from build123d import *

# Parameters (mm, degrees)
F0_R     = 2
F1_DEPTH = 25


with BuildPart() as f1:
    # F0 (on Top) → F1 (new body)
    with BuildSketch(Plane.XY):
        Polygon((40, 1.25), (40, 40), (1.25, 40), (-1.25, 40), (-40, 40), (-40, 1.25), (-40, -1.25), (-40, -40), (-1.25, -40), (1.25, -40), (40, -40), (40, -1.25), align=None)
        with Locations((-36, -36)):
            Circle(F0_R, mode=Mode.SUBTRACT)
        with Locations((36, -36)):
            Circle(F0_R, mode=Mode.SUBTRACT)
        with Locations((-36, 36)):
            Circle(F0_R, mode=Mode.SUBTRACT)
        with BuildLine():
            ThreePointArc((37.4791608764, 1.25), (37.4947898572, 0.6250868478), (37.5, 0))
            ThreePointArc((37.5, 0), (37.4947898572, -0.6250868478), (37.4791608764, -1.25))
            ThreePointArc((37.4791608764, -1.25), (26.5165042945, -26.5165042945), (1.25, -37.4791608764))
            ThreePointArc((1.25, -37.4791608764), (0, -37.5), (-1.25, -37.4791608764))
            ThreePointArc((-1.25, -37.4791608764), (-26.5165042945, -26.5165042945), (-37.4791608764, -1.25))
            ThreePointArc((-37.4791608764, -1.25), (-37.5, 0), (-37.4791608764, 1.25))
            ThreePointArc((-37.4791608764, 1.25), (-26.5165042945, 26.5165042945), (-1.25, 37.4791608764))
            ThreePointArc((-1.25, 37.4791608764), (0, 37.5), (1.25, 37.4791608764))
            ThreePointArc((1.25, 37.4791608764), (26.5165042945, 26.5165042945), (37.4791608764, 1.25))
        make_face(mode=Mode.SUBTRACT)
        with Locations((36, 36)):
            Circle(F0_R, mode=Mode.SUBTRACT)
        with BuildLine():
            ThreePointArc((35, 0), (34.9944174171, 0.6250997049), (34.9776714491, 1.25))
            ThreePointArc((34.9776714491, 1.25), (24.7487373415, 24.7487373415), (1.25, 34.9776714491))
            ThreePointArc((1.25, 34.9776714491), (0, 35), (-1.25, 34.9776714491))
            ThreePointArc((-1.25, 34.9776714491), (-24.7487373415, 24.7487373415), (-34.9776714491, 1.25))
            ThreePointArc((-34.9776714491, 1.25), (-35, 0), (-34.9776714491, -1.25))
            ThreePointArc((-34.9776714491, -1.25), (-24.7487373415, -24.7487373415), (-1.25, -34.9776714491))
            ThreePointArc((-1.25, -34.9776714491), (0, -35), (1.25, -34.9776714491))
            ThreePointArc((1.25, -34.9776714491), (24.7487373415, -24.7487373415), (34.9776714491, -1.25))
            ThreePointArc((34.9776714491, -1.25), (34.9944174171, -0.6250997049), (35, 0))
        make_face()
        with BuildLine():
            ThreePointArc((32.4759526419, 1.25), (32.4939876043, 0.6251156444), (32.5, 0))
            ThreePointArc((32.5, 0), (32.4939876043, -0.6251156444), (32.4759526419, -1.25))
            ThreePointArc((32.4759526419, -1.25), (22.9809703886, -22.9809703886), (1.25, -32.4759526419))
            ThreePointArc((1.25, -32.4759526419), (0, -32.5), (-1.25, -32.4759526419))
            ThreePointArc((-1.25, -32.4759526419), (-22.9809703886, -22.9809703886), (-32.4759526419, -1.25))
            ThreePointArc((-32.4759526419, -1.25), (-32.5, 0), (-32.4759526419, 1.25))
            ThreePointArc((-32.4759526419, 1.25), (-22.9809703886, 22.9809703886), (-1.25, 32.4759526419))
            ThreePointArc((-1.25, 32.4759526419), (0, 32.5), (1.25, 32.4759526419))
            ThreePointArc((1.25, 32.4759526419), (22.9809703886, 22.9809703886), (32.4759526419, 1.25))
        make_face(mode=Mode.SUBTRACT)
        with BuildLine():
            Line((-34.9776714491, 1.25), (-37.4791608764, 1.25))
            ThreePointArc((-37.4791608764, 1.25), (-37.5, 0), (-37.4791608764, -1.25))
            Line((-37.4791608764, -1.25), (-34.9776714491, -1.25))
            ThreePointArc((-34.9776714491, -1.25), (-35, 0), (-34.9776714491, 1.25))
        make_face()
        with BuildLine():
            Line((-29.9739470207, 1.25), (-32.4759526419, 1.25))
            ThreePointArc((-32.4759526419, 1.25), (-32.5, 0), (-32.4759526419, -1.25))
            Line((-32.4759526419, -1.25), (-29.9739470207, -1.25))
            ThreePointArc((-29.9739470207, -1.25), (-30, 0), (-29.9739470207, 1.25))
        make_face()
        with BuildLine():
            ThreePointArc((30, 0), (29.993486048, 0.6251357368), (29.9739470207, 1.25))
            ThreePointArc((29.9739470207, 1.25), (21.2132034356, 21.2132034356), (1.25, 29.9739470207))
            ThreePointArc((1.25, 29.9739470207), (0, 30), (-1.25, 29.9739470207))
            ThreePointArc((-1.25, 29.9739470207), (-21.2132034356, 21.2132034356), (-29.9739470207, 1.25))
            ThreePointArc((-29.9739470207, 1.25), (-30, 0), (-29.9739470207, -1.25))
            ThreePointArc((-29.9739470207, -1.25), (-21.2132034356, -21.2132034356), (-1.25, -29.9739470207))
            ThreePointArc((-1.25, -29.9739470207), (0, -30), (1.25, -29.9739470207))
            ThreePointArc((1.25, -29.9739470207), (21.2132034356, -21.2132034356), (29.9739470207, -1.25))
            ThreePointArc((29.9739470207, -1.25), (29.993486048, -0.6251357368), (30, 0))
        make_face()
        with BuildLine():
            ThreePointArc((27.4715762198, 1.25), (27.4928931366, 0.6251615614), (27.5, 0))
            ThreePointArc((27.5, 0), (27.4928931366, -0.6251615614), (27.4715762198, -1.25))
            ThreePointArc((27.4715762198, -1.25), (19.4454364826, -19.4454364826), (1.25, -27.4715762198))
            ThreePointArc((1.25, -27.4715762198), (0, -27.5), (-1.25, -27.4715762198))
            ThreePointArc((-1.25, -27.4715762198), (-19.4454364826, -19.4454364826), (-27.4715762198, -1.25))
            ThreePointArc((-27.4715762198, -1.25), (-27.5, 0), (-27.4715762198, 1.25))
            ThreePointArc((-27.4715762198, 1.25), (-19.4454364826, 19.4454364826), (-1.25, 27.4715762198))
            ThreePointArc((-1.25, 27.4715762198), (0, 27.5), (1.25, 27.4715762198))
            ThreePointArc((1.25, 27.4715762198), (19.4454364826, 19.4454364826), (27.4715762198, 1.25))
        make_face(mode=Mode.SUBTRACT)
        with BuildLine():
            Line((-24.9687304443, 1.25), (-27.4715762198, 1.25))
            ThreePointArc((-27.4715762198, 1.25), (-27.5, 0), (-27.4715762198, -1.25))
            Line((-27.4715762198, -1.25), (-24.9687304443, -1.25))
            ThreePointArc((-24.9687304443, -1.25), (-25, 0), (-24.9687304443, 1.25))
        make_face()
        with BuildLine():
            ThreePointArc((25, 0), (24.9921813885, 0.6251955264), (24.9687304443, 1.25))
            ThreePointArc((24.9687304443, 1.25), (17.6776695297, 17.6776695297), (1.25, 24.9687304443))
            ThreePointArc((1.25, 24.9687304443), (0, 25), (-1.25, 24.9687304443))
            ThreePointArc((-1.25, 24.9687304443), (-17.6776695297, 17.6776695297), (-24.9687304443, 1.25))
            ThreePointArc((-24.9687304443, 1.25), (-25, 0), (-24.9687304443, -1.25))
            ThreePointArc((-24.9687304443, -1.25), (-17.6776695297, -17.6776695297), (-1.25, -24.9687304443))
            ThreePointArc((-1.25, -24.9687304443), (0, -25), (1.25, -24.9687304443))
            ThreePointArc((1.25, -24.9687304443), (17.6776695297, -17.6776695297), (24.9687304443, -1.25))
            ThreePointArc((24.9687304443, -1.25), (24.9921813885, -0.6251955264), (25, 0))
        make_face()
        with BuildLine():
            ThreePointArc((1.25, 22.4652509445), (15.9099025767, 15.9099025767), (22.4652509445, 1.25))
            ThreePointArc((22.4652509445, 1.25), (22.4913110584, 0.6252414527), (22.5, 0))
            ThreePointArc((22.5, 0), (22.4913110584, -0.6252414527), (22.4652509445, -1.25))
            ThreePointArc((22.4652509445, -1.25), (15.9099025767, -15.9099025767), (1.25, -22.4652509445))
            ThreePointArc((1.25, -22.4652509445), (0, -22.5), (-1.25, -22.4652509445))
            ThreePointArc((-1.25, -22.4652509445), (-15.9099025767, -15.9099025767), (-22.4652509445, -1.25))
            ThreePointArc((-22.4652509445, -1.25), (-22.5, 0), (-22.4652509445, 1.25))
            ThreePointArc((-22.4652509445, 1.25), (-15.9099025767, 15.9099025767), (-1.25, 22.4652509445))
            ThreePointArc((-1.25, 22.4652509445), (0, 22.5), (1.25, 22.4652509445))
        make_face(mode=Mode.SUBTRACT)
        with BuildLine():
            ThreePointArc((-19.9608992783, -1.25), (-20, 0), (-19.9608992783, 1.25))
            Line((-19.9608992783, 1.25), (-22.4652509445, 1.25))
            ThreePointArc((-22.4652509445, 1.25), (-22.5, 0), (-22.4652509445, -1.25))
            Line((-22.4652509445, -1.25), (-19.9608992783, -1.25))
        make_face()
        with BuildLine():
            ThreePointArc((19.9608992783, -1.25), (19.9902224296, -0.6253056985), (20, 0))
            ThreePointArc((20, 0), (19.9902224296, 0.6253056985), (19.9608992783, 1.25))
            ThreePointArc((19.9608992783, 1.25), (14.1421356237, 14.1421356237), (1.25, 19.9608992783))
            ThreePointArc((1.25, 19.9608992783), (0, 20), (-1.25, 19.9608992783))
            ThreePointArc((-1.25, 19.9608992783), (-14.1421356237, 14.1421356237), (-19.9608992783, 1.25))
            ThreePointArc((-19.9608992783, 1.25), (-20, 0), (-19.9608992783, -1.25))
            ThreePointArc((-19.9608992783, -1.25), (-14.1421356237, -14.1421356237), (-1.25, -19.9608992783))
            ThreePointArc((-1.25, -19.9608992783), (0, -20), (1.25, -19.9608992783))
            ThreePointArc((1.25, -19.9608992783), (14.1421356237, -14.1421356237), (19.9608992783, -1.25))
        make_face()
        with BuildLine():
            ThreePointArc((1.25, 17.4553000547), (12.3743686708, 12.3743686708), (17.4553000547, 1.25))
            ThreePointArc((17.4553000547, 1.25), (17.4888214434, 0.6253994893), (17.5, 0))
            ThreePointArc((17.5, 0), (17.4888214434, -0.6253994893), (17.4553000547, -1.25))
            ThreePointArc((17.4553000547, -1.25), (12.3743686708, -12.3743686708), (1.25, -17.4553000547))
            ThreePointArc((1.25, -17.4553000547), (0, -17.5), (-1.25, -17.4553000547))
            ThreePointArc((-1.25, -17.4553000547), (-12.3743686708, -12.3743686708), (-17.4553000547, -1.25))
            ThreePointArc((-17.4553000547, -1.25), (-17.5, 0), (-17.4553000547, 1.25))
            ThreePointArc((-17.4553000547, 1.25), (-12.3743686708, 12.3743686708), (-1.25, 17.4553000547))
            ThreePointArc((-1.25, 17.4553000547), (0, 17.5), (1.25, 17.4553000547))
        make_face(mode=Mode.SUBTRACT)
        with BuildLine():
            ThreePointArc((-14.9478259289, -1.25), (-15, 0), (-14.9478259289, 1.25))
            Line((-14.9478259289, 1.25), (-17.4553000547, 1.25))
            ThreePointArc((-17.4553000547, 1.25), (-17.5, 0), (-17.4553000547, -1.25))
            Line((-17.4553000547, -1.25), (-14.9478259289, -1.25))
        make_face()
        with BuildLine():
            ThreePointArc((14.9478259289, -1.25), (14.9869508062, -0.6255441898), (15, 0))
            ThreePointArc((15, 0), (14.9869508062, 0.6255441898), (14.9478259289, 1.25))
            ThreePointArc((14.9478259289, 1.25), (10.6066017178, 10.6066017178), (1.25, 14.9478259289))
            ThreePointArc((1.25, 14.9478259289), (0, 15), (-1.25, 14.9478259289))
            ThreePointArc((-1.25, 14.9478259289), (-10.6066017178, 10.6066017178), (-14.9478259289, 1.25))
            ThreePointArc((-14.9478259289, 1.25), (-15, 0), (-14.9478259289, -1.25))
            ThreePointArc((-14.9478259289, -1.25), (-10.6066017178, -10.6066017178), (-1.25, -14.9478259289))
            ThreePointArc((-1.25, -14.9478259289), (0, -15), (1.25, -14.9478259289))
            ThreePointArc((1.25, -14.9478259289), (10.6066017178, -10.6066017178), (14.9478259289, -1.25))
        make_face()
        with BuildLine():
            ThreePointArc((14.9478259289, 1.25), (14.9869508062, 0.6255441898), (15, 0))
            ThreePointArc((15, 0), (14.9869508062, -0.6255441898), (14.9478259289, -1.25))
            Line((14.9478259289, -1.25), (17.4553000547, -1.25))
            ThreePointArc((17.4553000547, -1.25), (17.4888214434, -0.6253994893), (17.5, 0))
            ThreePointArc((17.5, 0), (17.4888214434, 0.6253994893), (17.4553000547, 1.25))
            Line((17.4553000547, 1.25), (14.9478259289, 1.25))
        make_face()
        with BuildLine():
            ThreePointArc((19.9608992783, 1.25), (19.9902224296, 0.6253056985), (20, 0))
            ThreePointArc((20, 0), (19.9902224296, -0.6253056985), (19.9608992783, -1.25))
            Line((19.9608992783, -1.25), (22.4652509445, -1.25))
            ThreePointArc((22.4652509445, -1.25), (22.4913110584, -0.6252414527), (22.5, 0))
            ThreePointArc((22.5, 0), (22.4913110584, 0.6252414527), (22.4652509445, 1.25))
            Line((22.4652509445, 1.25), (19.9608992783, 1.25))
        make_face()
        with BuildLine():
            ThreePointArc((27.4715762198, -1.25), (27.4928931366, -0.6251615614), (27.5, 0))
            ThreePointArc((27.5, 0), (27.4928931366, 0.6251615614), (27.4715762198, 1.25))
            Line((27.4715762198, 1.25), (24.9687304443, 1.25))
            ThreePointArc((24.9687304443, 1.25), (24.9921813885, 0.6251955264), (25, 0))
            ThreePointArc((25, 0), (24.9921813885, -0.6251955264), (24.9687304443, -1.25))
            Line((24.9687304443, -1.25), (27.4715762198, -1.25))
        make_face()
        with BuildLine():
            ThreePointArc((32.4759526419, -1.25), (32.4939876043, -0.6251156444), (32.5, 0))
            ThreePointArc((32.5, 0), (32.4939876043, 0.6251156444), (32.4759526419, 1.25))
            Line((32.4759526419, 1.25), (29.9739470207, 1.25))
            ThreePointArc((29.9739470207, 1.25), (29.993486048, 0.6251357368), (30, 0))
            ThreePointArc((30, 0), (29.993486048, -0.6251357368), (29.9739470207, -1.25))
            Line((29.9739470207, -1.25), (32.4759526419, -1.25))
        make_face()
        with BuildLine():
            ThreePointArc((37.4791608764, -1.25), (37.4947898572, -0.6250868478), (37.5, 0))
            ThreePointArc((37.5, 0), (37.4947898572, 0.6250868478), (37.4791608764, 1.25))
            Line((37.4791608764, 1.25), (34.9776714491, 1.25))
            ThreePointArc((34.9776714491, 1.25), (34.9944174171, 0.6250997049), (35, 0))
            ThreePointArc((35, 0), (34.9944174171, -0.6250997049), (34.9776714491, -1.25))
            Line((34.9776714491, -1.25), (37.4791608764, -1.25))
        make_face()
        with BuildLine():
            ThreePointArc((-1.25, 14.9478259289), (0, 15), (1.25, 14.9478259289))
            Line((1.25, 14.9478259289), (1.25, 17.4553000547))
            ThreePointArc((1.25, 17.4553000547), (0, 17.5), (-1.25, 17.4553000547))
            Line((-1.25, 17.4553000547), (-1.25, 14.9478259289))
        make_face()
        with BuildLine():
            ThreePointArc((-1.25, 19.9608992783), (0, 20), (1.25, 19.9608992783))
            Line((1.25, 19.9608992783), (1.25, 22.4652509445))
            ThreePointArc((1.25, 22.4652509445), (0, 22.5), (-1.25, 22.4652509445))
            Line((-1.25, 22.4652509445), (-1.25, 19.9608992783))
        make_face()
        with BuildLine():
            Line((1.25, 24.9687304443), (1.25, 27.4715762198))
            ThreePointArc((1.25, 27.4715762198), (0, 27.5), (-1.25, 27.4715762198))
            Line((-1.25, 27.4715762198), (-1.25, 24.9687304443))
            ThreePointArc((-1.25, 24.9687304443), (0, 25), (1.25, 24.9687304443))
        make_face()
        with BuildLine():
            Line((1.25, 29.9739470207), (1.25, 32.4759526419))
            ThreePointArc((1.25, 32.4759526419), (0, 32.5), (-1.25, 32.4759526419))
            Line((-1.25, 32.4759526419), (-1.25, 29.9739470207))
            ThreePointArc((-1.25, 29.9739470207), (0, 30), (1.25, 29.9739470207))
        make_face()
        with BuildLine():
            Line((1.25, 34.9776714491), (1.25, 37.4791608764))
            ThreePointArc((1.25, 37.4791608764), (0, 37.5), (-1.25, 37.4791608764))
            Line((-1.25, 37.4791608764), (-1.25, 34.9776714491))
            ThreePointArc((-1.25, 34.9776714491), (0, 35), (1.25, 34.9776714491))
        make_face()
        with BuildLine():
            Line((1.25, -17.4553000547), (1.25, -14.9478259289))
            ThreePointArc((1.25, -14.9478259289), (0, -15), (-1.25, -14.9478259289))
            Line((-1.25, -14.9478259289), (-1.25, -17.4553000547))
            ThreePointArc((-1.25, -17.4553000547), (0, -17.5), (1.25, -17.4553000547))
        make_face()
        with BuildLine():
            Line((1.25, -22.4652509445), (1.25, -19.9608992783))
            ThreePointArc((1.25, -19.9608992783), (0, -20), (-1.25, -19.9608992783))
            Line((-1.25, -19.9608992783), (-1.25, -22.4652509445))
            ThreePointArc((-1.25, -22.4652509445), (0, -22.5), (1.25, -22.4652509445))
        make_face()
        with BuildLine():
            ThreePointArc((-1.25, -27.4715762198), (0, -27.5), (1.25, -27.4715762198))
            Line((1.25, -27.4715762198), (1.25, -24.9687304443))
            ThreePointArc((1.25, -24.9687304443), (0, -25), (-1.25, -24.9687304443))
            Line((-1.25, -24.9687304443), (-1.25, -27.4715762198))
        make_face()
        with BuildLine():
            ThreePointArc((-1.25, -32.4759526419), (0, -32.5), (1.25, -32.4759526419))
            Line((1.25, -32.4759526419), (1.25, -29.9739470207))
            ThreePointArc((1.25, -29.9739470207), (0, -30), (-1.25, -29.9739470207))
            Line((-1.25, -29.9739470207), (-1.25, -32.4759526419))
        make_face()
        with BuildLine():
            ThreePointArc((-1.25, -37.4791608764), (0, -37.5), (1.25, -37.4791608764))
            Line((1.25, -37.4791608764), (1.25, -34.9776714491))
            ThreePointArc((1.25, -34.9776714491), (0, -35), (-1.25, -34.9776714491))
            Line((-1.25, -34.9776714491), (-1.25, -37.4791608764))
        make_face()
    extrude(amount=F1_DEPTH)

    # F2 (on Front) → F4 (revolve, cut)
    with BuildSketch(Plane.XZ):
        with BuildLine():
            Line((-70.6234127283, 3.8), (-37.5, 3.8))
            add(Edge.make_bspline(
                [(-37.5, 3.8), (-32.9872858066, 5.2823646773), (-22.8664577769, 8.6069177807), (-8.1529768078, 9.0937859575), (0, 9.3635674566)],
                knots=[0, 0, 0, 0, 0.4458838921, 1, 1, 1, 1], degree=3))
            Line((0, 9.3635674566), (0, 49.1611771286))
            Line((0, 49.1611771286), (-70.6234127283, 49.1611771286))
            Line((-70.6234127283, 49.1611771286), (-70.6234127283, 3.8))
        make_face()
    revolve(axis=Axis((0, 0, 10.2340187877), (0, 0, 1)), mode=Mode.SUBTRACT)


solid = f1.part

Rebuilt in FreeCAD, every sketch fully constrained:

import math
import FreeCAD as App
import Part
import Sketcher
from FreeCAD import Vector
Q = App.Units.Quantity


def add_polygon(sketch, points):
    """Adds a closed chain of lines whose ends are joined by coincident constraints."""
    first, n = sketch.GeometryCount, len(points)
    for a, b in zip(points, points[1:] + points[:1]):
        sketch.addGeometry(Part.LineSegment(App.Vector(*a, 0), App.Vector(*b, 0)), False)
    for i in range(n):
        sketch.addConstraint(Sketcher.Constraint("Coincident", first + i, 2, first + (i + 1) % n, 1))

doc = App.newDocument("Part")
body = doc.addObject("PartDesign::Body", "Body")

sketch1 = body.newObject("Sketcher::SketchObject", "Sketch")
sketch1.AttachmentSupport = (doc.getObject("XY_Plane"), [""])
sketch1.MapMode = "FlatFace"
add_polygon(sketch1, [(40, 40), (-40, 40), (-40, -40), (40, -40)])
sketch1.addGeometry(Part.Circle(Vector(-36, -36, 0), Vector(0, 0, 1), 2), False)
sketch1.addGeometry(Part.Circle(Vector(36, -36, 0), Vector(0, 0, 1), 2), False)
sketch1.addGeometry(Part.Circle(Vector(-36, 36, 0), Vector(0, 0, 1), 2), False)
sketch1.addGeometry(Part.ArcOfCircle(Part.Circle(Vector(0, 0, 0), Vector(0, 0, 1), 37.5), math.radians(2), math.radians(88)), False)
sketch1.addGeometry(Part.LineSegment(Vector(37.5, 1.2, 0), Vector(35, 1.2, 0)), False)
sketch1.addGeometry(Part.ArcOfCircle(Part.Circle(Vector(0, 0, 0), Vector(0, 0, 1), 35), math.radians(2), math.radians(88)), False)
sketch1.addGeometry(Part.LineSegment(Vector(1.2, 35, 0), Vector(1.2, 37.5, 0)), False)
sketch1.addGeometry(Part.ArcOfCircle(Part.Circle(Vector(0, 0, 0), Vector(0, 0, 1), 35), math.radians(92), math.radians(178)), False)
sketch1.addGeometry(Part.LineSegment(Vector(-35, 1.2, 0), Vector(-37.5, 1.2, 0)), False)
sketch1.addGeometry(Part.ArcOfCircle(Part.Circle(Vector(0, 0, 0), Vector(0, 0, 1), 37.5), math.radians(92), math.radians(178)), False)
sketch1.addGeometry(Part.LineSegment(Vector(-1.2, 37.5, 0), Vector(-1.2, 35, 0)), False)
sketch1.addGeometry(Part.ArcOfCircle(Part.Circle(Vector(0, 0, 0), Vector(0, 0, 1), 37.5), math.radians(-88), math.radians(-2)), False)
sketch1.addGeometry(Part.LineSegment(Vector(1.2, -37.5, 0), Vector(1.2, -35, 0)), False)
sketch1.addGeometry(Part.ArcOfCircle(Part.Circle(Vector(0, 0, 0), Vector(0, 0, 1), 35), math.radians(-88), math.radians(-2)), False)
sketch1.addGeometry(Part.LineSegment(Vector(35, -1.2, 0), Vector(37.5, -1.2, 0)), False)
sketch1.addGeometry(Part.ArcOfCircle(Part.Circle(Vector(0, 0, 0), Vector(0, 0, 1), 37.5), math.radians(-178), math.radians(-92)), False)
sketch1.addGeometry(Part.LineSegment(Vector(-37.5, -1.2, 0), Vector(-35, -1.2, 0)), False)
sketch1.addGeometry(Part.ArcOfCircle(Part.Circle(Vector(0, 0, 0), Vector(0, 0, 1), 35), math.radians(-178), math.radians(-92)), False)
sketch1.addGeometry(Part.LineSegment(Vector(-1.2, -35, 0), Vector(-1.2, -37.5, 0)), False)
sketch1.addGeometry(Part.ArcOfCircle(Part.Circle(Vector(0, 0, 0), Vector(0, 0, 1), 27.5), math.radians(3), math.radians(87)), False)
sketch1.addGeometry(Part.LineSegment(Vector(27.5, 1.2, 0), Vector(25, 1.2, 0)), False)
sketch1.addGeometry(Part.ArcOfCircle(Part.Circle(Vector(0, 0, 0), Vector(0, 0, 1), 25), math.radians(3), math.radians(87)), False)
sketch1.addGeometry(Part.LineSegment(Vector(1.2, 25, 0), Vector(1.2, 27.5, 0)), False)
sketch1.addGeometry(Part.ArcOfCircle(Part.Circle(Vector(0, 0, 0), Vector(0, 0, 1), 25), math.radians(93), math.radians(177)), False)
sketch1.addGeometry(Part.LineSegment(Vector(-25, 1.2, 0), Vector(-27.5, 1.2, 0)), False)
sketch1.addGeometry(Part.ArcOfCircle(Part.Circle(Vector(0, 0, 0), Vector(0, 0, 1), 27.5), math.radians(93), math.radians(177)), False)
sketch1.addGeometry(Part.LineSegment(Vector(-1.2, 27.5, 0), Vector(-1.2, 25, 0)), False)
sketch1.addGeometry(Part.ArcOfCircle(Part.Circle(Vector(0, 0, 0), Vector(0, 0, 1), 27.5), math.radians(-87), math.radians(-3)), False)
sketch1.addGeometry(Part.LineSegment(Vector(1.2, -27.5, 0), Vector(1.2, -25, 0)), False)
sketch1.addGeometry(Part.ArcOfCircle(Part.Circle(Vector(0, 0, 0), Vector(0, 0, 1), 25), math.radians(-87), math.radians(-3)), False)
sketch1.addGeometry(Part.LineSegment(Vector(25, -1.2, 0), Vector(27.5, -1.2, 0)), False)
sketch1.addGeometry(Part.ArcOfCircle(Part.Circle(Vector(0, 0, 0), Vector(0, 0, 1), 27.5), math.radians(-177), math.radians(-93)), False)
sketch1.addGeometry(Part.LineSegment(Vector(-27.5, -1.2, 0), Vector(-25, -1.2, 0)), False)
sketch1.addGeometry(Part.ArcOfCircle(Part.Circle(Vector(0, 0, 0), Vector(0, 0, 1), 25), math.radians(-177), math.radians(-93)), False)
sketch1.addGeometry(Part.LineSegment(Vector(-1.2, -25, 0), Vector(-1.2, -27.5, 0)), False)
sketch1.addGeometry(Part.ArcOfCircle(Part.Circle(Vector(0, 0, 0), Vector(0, 0, 1), 32.5), math.radians(-88), math.radians(-2)), False)
sketch1.addGeometry(Part.LineSegment(Vector(1.2, -32.5, 0), Vector(1.2, -30, 0)), False)
sketch1.addGeometry(Part.ArcOfCircle(Part.Circle(Vector(0, 0, 0), Vector(0, 0, 1), 30), math.radians(-88), math.radians(-2)), False)
sketch1.addGeometry(Part.LineSegment(Vector(30, -1.2, 0), Vector(32.5, -1.2, 0)), False)
sketch1.addGeometry(Part.ArcOfCircle(Part.Circle(Vector(0, 0, 0), Vector(0, 0, 1), 32.5), math.radians(-178), math.radians(-92)), False)
sketch1.addGeometry(Part.LineSegment(Vector(-32.5, -1.2, 0), Vector(-30, -1.2, 0)), False)
sketch1.addGeometry(Part.ArcOfCircle(Part.Circle(Vector(0, 0, 0), Vector(0, 0, 1), 30), math.radians(-178), math.radians(-92)), False)
sketch1.addGeometry(Part.LineSegment(Vector(-1.2, -30, 0), Vector(-1.2, -32.5, 0)), False)
sketch1.addGeometry(Part.ArcOfCircle(Part.Circle(Vector(0, 0, 0), Vector(0, 0, 1), 30), math.radians(2), math.radians(88)), False)
sketch1.addGeometry(Part.LineSegment(Vector(1.2, 30, 0), Vector(1.2, 32.5, 0)), False)
sketch1.addGeometry(Part.ArcOfCircle(Part.Circle(Vector(0, 0, 0), Vector(0, 0, 1), 32.5), math.radians(2), math.radians(88)), False)
sketch1.addGeometry(Part.LineSegment(Vector(32.5, 1.2, 0), Vector(30, 1.2, 0)), False)
sketch1.addGeometry(Part.ArcOfCircle(Part.Circle(Vector(0, 0, 0), Vector(0, 0, 1), 30), math.radians(92), math.radians(178)), False)
sketch1.addGeometry(Part.LineSegment(Vector(-30, 1.2, 0), Vector(-32.5, 1.2, 0)), False)
sketch1.addGeometry(Part.ArcOfCircle(Part.Circle(Vector(0, 0, 0), Vector(0, 0, 1), 32.5), math.radians(92), math.radians(178)), False)
sketch1.addGeometry(Part.LineSegment(Vector(-1.2, 32.5, 0), Vector(-1.2, 30, 0)), False)
sketch1.addGeometry(Part.ArcOfCircle(Part.Circle(Vector(0, 0, 0), Vector(0, 0, 1), 22.5), math.radians(3), math.radians(87)), False)
sketch1.addGeometry(Part.LineSegment(Vector(22.5, 1.2, 0), Vector(20, 1.2, 0)), False)
sketch1.addGeometry(Part.ArcOfCircle(Part.Circle(Vector(0, 0, 0), Vector(0, 0, 1), 20), math.radians(4), math.radians(86)), False)
sketch1.addGeometry(Part.LineSegment(Vector(1.2, 20, 0), Vector(1.2, 22.5, 0)), False)
sketch1.addGeometry(Part.ArcOfCircle(Part.Circle(Vector(0, 0, 0), Vector(0, 0, 1), 20), math.radians(94), math.radians(176)), False)
sketch1.addGeometry(Part.LineSegment(Vector(-20, 1.2, 0), Vector(-22.5, 1.2, 0)), False)
sketch1.addGeometry(Part.ArcOfCircle(Part.Circle(Vector(0, 0, 0), Vector(0, 0, 1), 22.5), math.radians(93), math.radians(177)), False)
sketch1.addGeometry(Part.LineSegment(Vector(-1.2, 22.5, 0), Vector(-1.2, 20, 0)), False)
sketch1.addGeometry(Part.ArcOfCircle(Part.Circle(Vector(0, 0, 0), Vector(0, 0, 1), 22.5), math.radians(-87), math.radians(-3)), False)
sketch1.addGeometry(Part.LineSegment(Vector(1.2, -22.5, 0), Vector(1.2, -20, 0)), False)
sketch1.addGeometry(Part.ArcOfCircle(Part.Circle(Vector(0, 0, 0), Vector(0, 0, 1), 20), math.radians(-86), math.radians(-4)), False)
sketch1.addGeometry(Part.LineSegment(Vector(20, -1.2, 0), Vector(22.5, -1.2, 0)), False)
sketch1.addGeometry(Part.ArcOfCircle(Part.Circle(Vector(0, 0, 0), Vector(0, 0, 1), 22.5), math.radians(-177), math.radians(-93)), False)
sketch1.addGeometry(Part.LineSegment(Vector(-22.5, -1.2, 0), Vector(-20, -1.2, 0)), False)
sketch1.addGeometry(Part.ArcOfCircle(Part.Circle(Vector(0, 0, 0), Vector(0, 0, 1), 20), math.radians(-176), math.radians(-94)), False)
sketch1.addGeometry(Part.LineSegment(Vector(-1.2, -20, 0), Vector(-1.2, -22.5, 0)), False)
sketch1.addGeometry(Part.ArcOfCircle(Part.Circle(Vector(0, 0, 0), Vector(0, 0, 1), 17.5), math.radians(4), math.radians(86)), False)
sketch1.addGeometry(Part.LineSegment(Vector(17.5, 1.2, 0), Vector(14.9, 1.2, 0)), False)
sketch1.addGeometry(Part.ArcOfCircle(Part.Circle(Vector(0, 0, 0), Vector(0, 0, 1), 15), math.radians(5), math.radians(85)), False)
sketch1.addGeometry(Part.LineSegment(Vector(1.2, 14.9, 0), Vector(1.2, 17.5, 0)), False)
sketch1.addGeometry(Part.ArcOfCircle(Part.Circle(Vector(0, 0, 0), Vector(0, 0, 1), 15), math.radians(95), math.radians(175)), False)
sketch1.addGeometry(Part.LineSegment(Vector(-14.9, 1.2, 0), Vector(-17.5, 1.2, 0)), False)
sketch1.addGeometry(Part.ArcOfCircle(Part.Circle(Vector(0, 0, 0), Vector(0, 0, 1), 17.5), math.radians(94), math.radians(176)), False)
sketch1.addGeometry(Part.LineSegment(Vector(-1.2, 17.5, 0), Vector(-1.2, 14.9, 0)), False)
sketch1.addGeometry(Part.ArcOfCircle(Part.Circle(Vector(0, 0, 0), Vector(0, 0, 1), 17.5), math.radians(-86), math.radians(-4)), False)
sketch1.addGeometry(Part.LineSegment(Vector(1.2, -17.5, 0), Vector(1.2, -14.9, 0)), False)
sketch1.addGeometry(Part.ArcOfCircle(Part.Circle(Vector(0, 0, 0), Vector(0, 0, 1), 15), math.radians(-85), math.radians(-5)), False)
sketch1.addGeometry(Part.LineSegment(Vector(14.9, -1.2, 0), Vector(17.5, -1.2, 0)), False)
sketch1.addGeometry(Part.ArcOfCircle(Part.Circle(Vector(0, 0, 0), Vector(0, 0, 1), 17.5), math.radians(-176), math.radians(-94)), False)
sketch1.addGeometry(Part.LineSegment(Vector(-17.5, -1.2, 0), Vector(-14.9, -1.2, 0)), False)
sketch1.addGeometry(Part.ArcOfCircle(Part.Circle(Vector(0, 0, 0), Vector(0, 0, 1), 15), math.radians(-175), math.radians(-95)), False)
sketch1.addGeometry(Part.LineSegment(Vector(-1.2, -14.9, 0), Vector(-1.2, -17.5, 0)), False)
sketch1.addGeometry(Part.Circle(Vector(36, 36, 0), Vector(0, 0, 1), 2), False)
sketch1.addConstraint([
    Sketcher.Constraint("Coincident", 7, 1, 8, 1),
    Sketcher.Constraint("Coincident", 8, 2, 9, 1),
    Sketcher.Constraint("Coincident", 9, 2, 10, 1),
    Sketcher.Constraint("Coincident", 10, 2, 7, 2),
    Sketcher.Constraint("Coincident", 11, 2, 12, 1),
    Sketcher.Constraint("Coincident", 12, 2, 13, 2),
    Sketcher.Constraint("Coincident", 13, 1, 14, 1),
    Sketcher.Constraint("Coincident", 14, 2, 11, 1),
    Sketcher.Constraint("Coincident", 15, 1, 16, 1),
    Sketcher.Constraint("Coincident", 16, 2, 17, 1),
    Sketcher.Constraint("Coincident", 17, 2, 18, 1),
    Sketcher.Constraint("Coincident", 18, 2, 15, 2),
    Sketcher.Constraint("Coincident", 19, 1, 20, 1),
    Sketcher.Constraint("Coincident", 20, 2, 21, 1),
    Sketcher.Constraint("Coincident", 21, 2, 22, 1),
    Sketcher.Constraint("Coincident", 22, 2, 19, 2),
    Sketcher.Constraint("Coincident", 23, 1, 24, 1),
    Sketcher.Constraint("Coincident", 24, 2, 25, 1),
    Sketcher.Constraint("Coincident", 25, 2, 26, 1),
    Sketcher.Constraint("Coincident", 26, 2, 23, 2),
    Sketcher.Constraint("Coincident", 27, 2, 28, 1),
    Sketcher.Constraint("Coincident", 28, 2, 29, 2),
    Sketcher.Constraint("Coincident", 29, 1, 30, 1),
    Sketcher.Constraint("Coincident", 30, 2, 27, 1),
    Sketcher.Constraint("Coincident", 31, 1, 32, 1),
    Sketcher.Constraint("Coincident", 32, 2, 33, 1),
    Sketcher.Constraint("Coincident", 33, 2, 34, 1),
    Sketcher.Constraint("Coincident", 34, 2, 31, 2),
    Sketcher.Constraint("Coincident", 35, 1, 36, 1),
    Sketcher.Constraint("Coincident", 36, 2, 37, 1),
    Sketcher.Constraint("Coincident", 37, 2, 38, 1),
    Sketcher.Constraint("Coincident", 38, 2, 35, 2),
    Sketcher.Constraint("Coincident", 39, 1, 40, 1),
    Sketcher.Constraint("Coincident", 40, 2, 41, 1),
    Sketcher.Constraint("Coincident", 41, 2, 42, 1),
    Sketcher.Constraint("Coincident", 42, 2, 39, 2),
    Sketcher.Constraint("Coincident", 43, 1, 44, 1),
    Sketcher.Constraint("Coincident", 44, 2, 45, 1),
    Sketcher.Constraint("Coincident", 45, 2, 46, 1),
    Sketcher.Constraint("Coincident", 46, 2, 43, 2),
    Sketcher.Constraint("Coincident", 47, 2, 48, 1),
    Sketcher.Constraint("Coincident", 48, 2, 49, 2),
    Sketcher.Constraint("Coincident", 49, 1, 50, 1),
    Sketcher.Constraint("Coincident", 50, 2, 47, 1),
    Sketcher.Constraint("Coincident", 51, 2, 52, 1),
    Sketcher.Constraint("Coincident", 52, 2, 53, 2),
    Sketcher.Constraint("Coincident", 53, 1, 54, 1),
    Sketcher.Constraint("Coincident", 54, 2, 51, 1),
    Sketcher.Constraint("Coincident", 55, 1, 56, 1),
    Sketcher.Constraint("Coincident", 56, 2, 57, 1),
    Sketcher.Constraint("Coincident", 57, 2, 58, 1),
    Sketcher.Constraint("Coincident", 58, 2, 55, 2),
    Sketcher.Constraint("Coincident", 59, 2, 60, 1),
    Sketcher.Constraint("Coincident", 60, 2, 61, 2),
    Sketcher.Constraint("Coincident", 61, 1, 62, 1),
    Sketcher.Constraint("Coincident", 62, 2, 59, 1),
    Sketcher.Constraint("Coincident", 63, 1, 64, 1),
    Sketcher.Constraint("Coincident", 64, 2, 65, 1),
    Sketcher.Constraint("Coincident", 65, 2, 66, 1),
    Sketcher.Constraint("Coincident", 66, 2, 63, 2),
    Sketcher.Constraint("Coincident", 67, 1, 68, 1),
    Sketcher.Constraint("Coincident", 68, 2, 69, 1),
    Sketcher.Constraint("Coincident", 69, 2, 70, 1),
    Sketcher.Constraint("Coincident", 70, 2, 67, 2),
    Sketcher.Constraint("Coincident", 71, 1, 72, 1),
    Sketcher.Constraint("Coincident", 72, 2, 73, 1),
    Sketcher.Constraint("Coincident", 73, 2, 74, 1),
    Sketcher.Constraint("Coincident", 74, 2, 71, 2),
    Sketcher.Constraint("Coincident", 75, 2, 76, 1),
    Sketcher.Constraint("Coincident", 76, 2, 77, 2),
    Sketcher.Constraint("Coincident", 77, 1, 78, 1),
    Sketcher.Constraint("Coincident", 78, 2, 75, 1),
    Sketcher.Constraint("Coincident", 79, 1, 80, 1),
    Sketcher.Constraint("Coincident", 80, 2, 81, 1),
    Sketcher.Constraint("Coincident", 81, 2, 82, 1),
    Sketcher.Constraint("Coincident", 82, 2, 79, 2),
    Sketcher.Constraint("Coincident", 83, 1, 84, 1),
    Sketcher.Constraint("Coincident", 84, 2, 85, 1),
    Sketcher.Constraint("Coincident", 85, 2, 86, 1),
    Sketcher.Constraint("Coincident", 86, 2, 83, 2),
    Sketcher.Constraint("Horizontal", 0),
    Sketcher.Constraint("Vertical", 1),
    Sketcher.Constraint("Horizontal", 2),
    Sketcher.Constraint("Vertical", 3),
    Sketcher.Constraint("Horizontal", 8),
    Sketcher.Constraint("Vertical", 10),
    Sketcher.Constraint("Horizontal", 12),
    Sketcher.Constraint("Vertical", 14),
    Sketcher.Constraint("Vertical", 16),
    Sketcher.Constraint("Horizontal", 18),
    Sketcher.Constraint("Horizontal", 20),
    Sketcher.Constraint("Vertical", 22),
    Sketcher.Constraint("Horizontal", 24),
    Sketcher.Constraint("Vertical", 26),
    Sketcher.Constraint("Horizontal", 28),
    Sketcher.Constraint("Vertical", 30),
    Sketcher.Constraint("Vertical", 32),
    Sketcher.Constraint("Horizontal", 34),
    Sketcher.Constraint("Horizontal", 36),
    Sketcher.Constraint("Vertical", 38),
    Sketcher.Constraint("Vertical", 40),
    Sketcher.Constraint("Horizontal", 42),
    Sketcher.Constraint("Horizontal", 44),
    Sketcher.Constraint("Vertical", 46),
    Sketcher.Constraint("Vertical", 48),
    Sketcher.Constraint("Horizontal", 50),
    Sketcher.Constraint("Horizontal", 52),
    Sketcher.Constraint("Vertical", 54),
    Sketcher.Constraint("Horizontal", 56),
    Sketcher.Constraint("Vertical", 58),
    Sketcher.Constraint("Horizontal", 60),
    Sketcher.Constraint("Vertical", 62),
    Sketcher.Constraint("Vertical", 64),
    Sketcher.Constraint("Horizontal", 66),
    Sketcher.Constraint("Horizontal", 68),
    Sketcher.Constraint("Vertical", 70),
    Sketcher.Constraint("Horizontal", 72),
    Sketcher.Constraint("Vertical", 74),
    Sketcher.Constraint("Horizontal", 76),
    Sketcher.Constraint("Vertical", 78),
    Sketcher.Constraint("Vertical", 80),
    Sketcher.Constraint("Horizontal", 82),
    Sketcher.Constraint("Horizontal", 84),
    Sketcher.Constraint("Vertical", 86),
    Sketcher.Constraint("Coincident", 7, 3, -1, 1),
    Sketcher.Constraint("Coincident", 9, 3, -1, 1),
    Sketcher.Constraint("Coincident", 11, 3, -1, 1),
    Sketcher.Constraint("Coincident", 13, 3, -1, 1),
    Sketcher.Constraint("Coincident", 15, 3, -1, 1),
    Sketcher.Constraint("Coincident", 17, 3, -1, 1),
    Sketcher.Constraint("Coincident", 19, 3, -1, 1),
    Sketcher.Constraint("Coincident", 21, 3, -1, 1),
    Sketcher.Constraint("Coincident", 23, 3, -1, 1),
    Sketcher.Constraint("Coincident", 25, 3, -1, 1),
    Sketcher.Constraint("Coincident", 27, 3, -1, 1),
    Sketcher.Constraint("Coincident", 29, 3, -1, 1),
    Sketcher.Constraint("Coincident", 31, 3, -1, 1),
    Sketcher.Constraint("Coincident", 33, 3, -1, 1),
    Sketcher.Constraint("Coincident", 35, 3, -1, 1),
    Sketcher.Constraint("Coincident", 37, 3, -1, 1),
    Sketcher.Constraint("Coincident", 39, 3, -1, 1),
    Sketcher.Constraint("Coincident", 41, 3, -1, 1),
    Sketcher.Constraint("Coincident", 43, 3, -1, 1),
    Sketcher.Constraint("Coincident", 45, 3, -1, 1),
    Sketcher.Constraint("Coincident", 47, 3, -1, 1),
    Sketcher.Constraint("Coincident", 49, 3, -1, 1),
    Sketcher.Constraint("Coincident", 51, 3, -1, 1),
    Sketcher.Constraint("Coincident", 53, 3, -1, 1),
    Sketcher.Constraint("Coincident", 55, 3, -1, 1),
    Sketcher.Constraint("Coincident", 57, 3, -1, 1),
    Sketcher.Constraint("Coincident", 59, 3, -1, 1),
    Sketcher.Constraint("Coincident", 61, 3, -1, 1),
    Sketcher.Constraint("Coincident", 63, 3, -1, 1),
    Sketcher.Constraint("Coincident", 65, 3, -1, 1),
    Sketcher.Constraint("Coincident", 67, 3, -1, 1),
    Sketcher.Constraint("Coincident", 69, 3, -1, 1),
    Sketcher.Constraint("Coincident", 71, 3, -1, 1),
    Sketcher.Constraint("Coincident", 73, 3, -1, 1),
    Sketcher.Constraint("Coincident", 75, 3, -1, 1),
    Sketcher.Constraint("Coincident", 77, 3, -1, 1),
    Sketcher.Constraint("Coincident", 79, 3, -1, 1),
    Sketcher.Constraint("Coincident", 81, 3, -1, 1),
    Sketcher.Constraint("Coincident", 83, 3, -1, 1),
    Sketcher.Constraint("Coincident", 85, 3, -1, 1),
    Sketcher.Constraint("Equal", 4, 5),
    Sketcher.Constraint("Equal", 5, 6),
    Sketcher.Constraint("Equal", 9, 11),
    Sketcher.Constraint("Equal", 7, 13),
    Sketcher.Constraint("Equal", 13, 15),
    Sketcher.Constraint("Equal", 11, 17),
    Sketcher.Constraint("Equal", 15, 19),
    Sketcher.Constraint("Equal", 17, 21),
    Sketcher.Constraint("Equal", 25, 27),
    Sketcher.Constraint("Equal", 23, 29),
    Sketcher.Constraint("Equal", 29, 31),
    Sketcher.Constraint("Equal", 27, 33),
    Sketcher.Constraint("Equal", 31, 35),
    Sketcher.Constraint("Equal", 33, 37),
    Sketcher.Constraint("Equal", 39, 43),
    Sketcher.Constraint("Equal", 41, 45),
    Sketcher.Constraint("Equal", 45, 47),
    Sketcher.Constraint("Equal", 43, 49),
    Sketcher.Constraint("Equal", 47, 51),
    Sketcher.Constraint("Equal", 49, 53),
    Sketcher.Constraint("Equal", 57, 59),
    Sketcher.Constraint("Equal", 55, 61),
    Sketcher.Constraint("Equal", 61, 63),
    Sketcher.Constraint("Equal", 59, 65),
    Sketcher.Constraint("Equal", 63, 67),
    Sketcher.Constraint("Equal", 65, 69),
    Sketcher.Constraint("Equal", 73, 75),
    Sketcher.Constraint("Equal", 71, 77),
    Sketcher.Constraint("Equal", 77, 79),
    Sketcher.Constraint("Equal", 75, 81),
    Sketcher.Constraint("Equal", 79, 83),
    Sketcher.Constraint("Equal", 81, 85),
    Sketcher.Constraint("Equal", 6, 87),
    Sketcher.Constraint("Symmetric", 5, 3, 6, 3, -1, 1),
    Sketcher.Constraint("Symmetric", 4, 3, 87, 3, -1, 1),
    Sketcher.Constraint("Symmetric", 0, 2, 2, 2, -1, 1),
    Sketcher.Constraint("Symmetric", 4, 3, 5, 3, -2),
    Sketcher.Constraint("Horizontal", 8, 2, 11, 2),
    Sketcher.Constraint("Horizontal", 10, 2, 13, 1),
    Sketcher.Constraint("Horizontal", 18, 2, 19, 1),
    Sketcher.Constraint("Horizontal", 16, 2, 21, 2),
    Sketcher.Constraint("Horizontal", 12, 2, 23, 1),
    Sketcher.Constraint("Horizontal", 24, 2, 27, 2),
    Sketcher.Constraint("Horizontal", 26, 2, 29, 1),
    Sketcher.Constraint("Horizontal", 20, 2, 33, 2),
    Sketcher.Constraint("Horizontal", 34, 2, 35, 1),
    Sketcher.Constraint("Horizontal", 32, 2, 37, 2),
    Sketcher.Constraint("Horizontal", 36, 2, 41, 2),
    Sketcher.Constraint("Horizontal", 42, 2, 43, 1),
    Sketcher.Constraint("Horizontal", 40, 2, 45, 2),
    Sketcher.Constraint("Horizontal", 28, 2, 49, 1),
    Sketcher.Constraint("Horizontal", 50, 2, 51, 2),
    Sketcher.Constraint("Horizontal", 48, 2, 53, 1),
    Sketcher.Constraint("Horizontal", 52, 2, 55, 1),
    Sketcher.Constraint("Horizontal", 56, 2, 59, 2),
    Sketcher.Constraint("Horizontal", 58, 2, 61, 1),
    Sketcher.Constraint("Horizontal", 44, 2, 65, 2),
    Sketcher.Constraint("Horizontal", 66, 2, 67, 1),
    Sketcher.Constraint("Horizontal", 64, 2, 69, 2),
    Sketcher.Constraint("Horizontal", 60, 2, 71, 1),
    Sketcher.Constraint("Horizontal", 72, 2, 75, 2),
    Sketcher.Constraint("Horizontal", 74, 2, 77, 1),
    Sketcher.Constraint("Horizontal", 68, 2, 81, 2),
    Sketcher.Constraint("Horizontal", 82, 2, 83, 1),
    Sketcher.Constraint("Horizontal", 80, 2, 85, 2),
    Sketcher.Constraint("Vertical", 10, 2, 15, 1),
    Sketcher.Constraint("Vertical", 8, 2, 17, 2),
    Sketcher.Constraint("Vertical", 16, 2, 25, 2),
    Sketcher.Constraint("Vertical", 26, 2, 31, 1),
    Sketcher.Constraint("Vertical", 32, 2, 39, 1),
    Sketcher.Constraint("Vertical", 40, 2, 47, 2),
    Sketcher.Constraint("Vertical", 48, 2, 57, 2),
    Sketcher.Constraint("Vertical", 58, 2, 63, 1),
    Sketcher.Constraint("Vertical", 64, 2, 73, 2),
    Sketcher.Constraint("Vertical", 74, 2, 79, 1),
    Sketcher.Constraint("Equal", 2, 1),
    Sketcher.Constraint("Diameter", 4, Q("4 mm")),
    Sketcher.Constraint("Radius", 9, Q("35 mm")),
    Sketcher.Constraint("Radius", 25, Q("25 mm")),
    Sketcher.Constraint("Radius", 41, Q("30 mm")),
    Sketcher.Constraint("Radius", 57, Q("20 mm")),
    Sketcher.Constraint("Radius", 73, Q("15 mm")),
    Sketcher.Constraint("Radius", 7, Q("37.5 mm")),
    Sketcher.Constraint("Radius", 23, Q("27.5 mm")),
    Sketcher.Constraint("Radius", 39, Q("32.5 mm")),
    Sketcher.Constraint("Radius", 55, Q("22.5 mm")),
    Sketcher.Constraint("Radius", 71, Q("17.5 mm")),
    Sketcher.Constraint("DistanceX", 0, 2, 0, 1, Q("80 mm")),
    Sketcher.Constraint("DistanceX", 4, 3, -1, 1, Q("36 mm")),
    Sketcher.Constraint("DistanceY", 4, 3, -1, 1, Q("36 mm")),
    Sketcher.Constraint("DistanceY", -1, 1, 7, 1, Q("1.25 mm")),
    Sketcher.Constraint("DistanceX", -1, 1, 9, 2, Q("1.25 mm")),
])
pad1 = body.newObject("PartDesign::Pad", "Pad")
pad1.Profile = sketch1
pad1.Length = 25

sketch2 = body.newObject("Sketcher::SketchObject", "Sketch001")
sketch2.AttachmentSupport = (doc.getObject("XZ_Plane"), [""])
sketch2.MapMode = "FlatFace"
sketch2.addGeometry([
    Part.LineSegment(Vector(-70.623413, 3.8, 0), Vector(-37.5, 3.8, 0)),
    Part.BSplineCurve([Vector(-37.5, 3.8, 0), Vector(-32.987286, 5.282365, 0), Vector(-22.866458, 8.606918, 0), Vector(-8.152977, 9.093786, 0), Vector(0, 9.363567, 0)], [4, 1, 4], [0, 0.445883892, 1], False, 3, [1, 1, 1, 1, 1], False),
    Part.LineSegment(Vector(0, 9.363567, 0), Vector(0, 49.161177, 0)),
    Part.LineSegment(Vector(0, 49.161177, 0), Vector(-70.623413, 49.161177, 0)),
    Part.LineSegment(Vector(-70.623413, 49.161177, 0), Vector(-70.623413, 3.8, 0)),
], False)
sketch2.addConstraint([
    Sketcher.Constraint("Block", 1),
    Sketcher.Constraint("Coincident", 0, 2, 1, 1),
    Sketcher.Constraint("Coincident", 1, 2, 2, 1),
    Sketcher.Constraint("Coincident", 2, 2, 3, 1),
    Sketcher.Constraint("Coincident", 3, 2, 4, 1),
    Sketcher.Constraint("Coincident", 4, 2, 0, 1),
    Sketcher.Constraint("Horizontal", 0),
    Sketcher.Constraint("Vertical", 2),
    Sketcher.Constraint("Horizontal", 3),
    Sketcher.Constraint("Vertical", 4),
    Sketcher.Constraint("DistanceY", 2, 1, 2, 2, Q("39.79761 mm")),
    Sketcher.Constraint("DistanceX", 0, 1, 0, 2, Q("33.123413 mm")),
])
groove = body.newObject("PartDesign::Groove", "Groove")
groove.Profile = sketch2
groove.ReferenceAxis = (sketch2, ["V_Axis"])
groove.Angle = 360

doc.recompute()
